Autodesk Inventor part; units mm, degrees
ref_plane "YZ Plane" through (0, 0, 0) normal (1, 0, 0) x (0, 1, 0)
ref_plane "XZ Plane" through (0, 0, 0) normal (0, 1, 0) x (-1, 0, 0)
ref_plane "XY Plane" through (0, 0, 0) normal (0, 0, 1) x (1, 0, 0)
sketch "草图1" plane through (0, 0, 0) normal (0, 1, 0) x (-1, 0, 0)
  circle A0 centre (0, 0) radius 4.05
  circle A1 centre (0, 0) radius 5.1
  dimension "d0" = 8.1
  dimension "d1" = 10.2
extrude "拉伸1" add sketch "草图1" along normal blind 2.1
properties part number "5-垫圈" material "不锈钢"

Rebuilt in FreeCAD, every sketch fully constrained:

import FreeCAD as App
import Part
import Sketcher
Q = App.Units.Quantity

doc = App.newDocument("Part")
body = doc.addObject("PartDesign::Body", "Body")

# Sketch on XZ plane
sketch1 = doc.addObject("Sketcher::SketchObject", "Sketch")
body.addObject(sketch1)
sketch1.AttachmentSupport = (doc.XZ_Plane, [""])
sketch1.MapMode = "FlatFace"
sketch1.addGeometry([
    Part.Circle(App.Vector(0, 0, 0), App.Vector(0, 0, 1), 5.1),
    Part.Circle(App.Vector(0, 0, 0), App.Vector(0, 0, 1), 4),
], False)
sketch1.addConstraint([
    Sketcher.Constraint("Coincident", 0, 3, -1, 1),
    Sketcher.Constraint("Coincident", 1, 3, -1, 1),
    Sketcher.Constraint("Diameter", 0, Q("10.2 mm")),
    Sketcher.Constraint("Diameter", 1, Q("8.1 mm")),
])
pad1 = doc.addObject("PartDesign::Pad", "Pad")
body.addObject(pad1)
pad1.Profile = sketch1
pad1.Length = 2.1
pad1.Reversed = True

doc.recompute()
